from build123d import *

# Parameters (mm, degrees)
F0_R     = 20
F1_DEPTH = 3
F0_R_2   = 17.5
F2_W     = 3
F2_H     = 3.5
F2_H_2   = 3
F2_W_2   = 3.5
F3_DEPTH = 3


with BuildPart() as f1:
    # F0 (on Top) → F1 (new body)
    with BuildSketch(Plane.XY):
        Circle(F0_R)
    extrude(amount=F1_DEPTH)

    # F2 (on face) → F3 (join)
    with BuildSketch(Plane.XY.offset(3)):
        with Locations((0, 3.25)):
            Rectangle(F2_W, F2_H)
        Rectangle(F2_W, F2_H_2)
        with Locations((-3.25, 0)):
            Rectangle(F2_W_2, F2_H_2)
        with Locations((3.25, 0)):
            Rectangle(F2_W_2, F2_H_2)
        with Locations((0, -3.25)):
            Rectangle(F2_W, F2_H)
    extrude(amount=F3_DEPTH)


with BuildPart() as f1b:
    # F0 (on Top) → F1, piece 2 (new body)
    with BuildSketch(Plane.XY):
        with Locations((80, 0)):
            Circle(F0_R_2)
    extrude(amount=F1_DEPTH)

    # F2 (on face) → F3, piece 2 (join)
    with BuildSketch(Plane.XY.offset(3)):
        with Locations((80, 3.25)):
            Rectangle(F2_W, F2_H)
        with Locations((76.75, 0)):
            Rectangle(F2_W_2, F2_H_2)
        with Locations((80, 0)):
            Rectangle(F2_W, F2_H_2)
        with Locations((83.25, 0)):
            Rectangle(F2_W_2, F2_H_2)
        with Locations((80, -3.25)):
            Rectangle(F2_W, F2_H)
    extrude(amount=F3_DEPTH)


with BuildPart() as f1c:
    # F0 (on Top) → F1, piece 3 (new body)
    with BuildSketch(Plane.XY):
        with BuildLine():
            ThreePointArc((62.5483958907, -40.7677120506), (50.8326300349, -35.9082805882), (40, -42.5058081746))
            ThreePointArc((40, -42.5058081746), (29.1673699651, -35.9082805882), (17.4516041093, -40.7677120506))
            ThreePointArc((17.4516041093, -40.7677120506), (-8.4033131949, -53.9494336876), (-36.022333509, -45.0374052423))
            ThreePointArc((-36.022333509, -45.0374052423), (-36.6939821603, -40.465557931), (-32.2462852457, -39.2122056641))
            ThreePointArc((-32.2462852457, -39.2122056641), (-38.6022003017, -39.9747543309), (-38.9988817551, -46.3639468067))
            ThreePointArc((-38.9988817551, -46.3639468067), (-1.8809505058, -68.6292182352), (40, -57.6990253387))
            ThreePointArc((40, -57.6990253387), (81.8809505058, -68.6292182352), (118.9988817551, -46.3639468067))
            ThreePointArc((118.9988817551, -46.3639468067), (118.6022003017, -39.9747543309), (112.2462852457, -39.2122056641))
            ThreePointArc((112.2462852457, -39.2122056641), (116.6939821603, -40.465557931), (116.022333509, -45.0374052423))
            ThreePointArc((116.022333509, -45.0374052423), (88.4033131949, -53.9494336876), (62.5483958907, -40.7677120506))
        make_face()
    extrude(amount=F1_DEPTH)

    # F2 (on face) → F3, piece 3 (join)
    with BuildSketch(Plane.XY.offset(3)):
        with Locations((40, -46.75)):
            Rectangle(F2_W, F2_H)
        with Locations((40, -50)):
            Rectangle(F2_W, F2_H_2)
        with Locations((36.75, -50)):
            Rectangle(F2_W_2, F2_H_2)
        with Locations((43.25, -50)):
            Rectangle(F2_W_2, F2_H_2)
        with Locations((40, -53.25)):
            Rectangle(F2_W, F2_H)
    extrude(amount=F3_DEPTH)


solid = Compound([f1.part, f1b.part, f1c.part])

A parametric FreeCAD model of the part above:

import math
import FreeCAD as App
import Part
import Sketcher
from FreeCAD import Vector
Q = App.Units.Quantity

doc = App.newDocument("Part")
params = doc.addObject("Spreadsheet::Sheet", "Params")
for row, (alias, value) in enumerate([
    ("sketch1_diameter", "40 mm"),
    ("pad1_length", "3 mm"),
    ("sketch2_width", "3 mm"),
    ("sketch2_width2", "3.5 mm"),
    ("pad2_length", "3 mm"),
    ("sketch3_diameter", "35 mm"),
    ("pad3_length", "3 mm"),
    ("sketch4_width", "3 mm"),
    ("sketch4_width2", "3.5 mm"),
    ("pad4_length", "3 mm"),
    ("sketch5_radius", "14 mm"),
    ("sketch5_radius2", "38 mm"),
    ("sketch5_radius3", "5 mm"),
    ("sketch5_radius4", "3.5 mm"),
    ("pad5_length", "3 mm"),
    ("sketch6_width", "3 mm"),
    ("sketch6_width2", "3.5 mm"),
    ("pad6_length", "3 mm"),
], start=1):
    params.set(f"A{row}", alias)
    params.set(f"B{row}", "=" + value)
    params.setAlias(f"B{row}", alias)

body = doc.addObject("PartDesign::Body", "Body")

sketch1 = doc.addObject("Sketcher::SketchObject", "Sketch")
body.addObject(sketch1)
sketch1.AttachmentSupport = (doc.XY_Plane, [""])
sketch1.MapMode = "FlatFace"
sketch1.addGeometry(Part.Circle(Vector(0, 0, 0), Vector(0, 0, 1), 20), False)
sketch1.addConstraint([
    Sketcher.Constraint("Coincident", 0, 3, -1, 1),
    Sketcher.Constraint("Diameter", 0, Q("40 mm")),
])
sketch1.setExpression("Constraints[1]", "Params.sketch1_diameter")
pad1 = doc.addObject("PartDesign::Pad", "Pad")
body.addObject(pad1)
pad1.Profile = sketch1
pad1.setExpression("Length", "Params.pad1_length")

sketch2 = doc.addObject("Sketcher::SketchObject", "Sketch001")
body.addObject(sketch2)
sketch2.AttachmentSupport = (doc.XY_Plane, [""])
sketch2.MapMode = "FlatFace"
sketch2.AttachmentOffset = App.Placement(Vector(0, 0, 3), App.Rotation())
sketch2.addGeometry([
    Part.LineSegment(Vector(-1.5, 5, 0), Vector(-1.5, 1.5, 0)),
    Part.LineSegment(Vector(-1.5, 1.5, 0), Vector(-5, 1.5, 0)),
    Part.LineSegment(Vector(-5, 1.5, 0), Vector(-5, -1.5, 0)),
    Part.LineSegment(Vector(-5, -1.5, 0), Vector(-1.5, -1.5, 0)),
    Part.LineSegment(Vector(-1.5, -1.5, 0), Vector(-1.5, -5, 0)),
    Part.LineSegment(Vector(-1.5, -5, 0), Vector(1.5, -5, 0)),
    Part.LineSegment(Vector(1.5, -5, 0), Vector(1.5, -1.5, 0)),
    Part.LineSegment(Vector(1.5, -1.5, 0), Vector(5, -1.5, 0)),
    Part.LineSegment(Vector(5, -1.5, 0), Vector(5, 1.5, 0)),
    Part.LineSegment(Vector(5, 1.5, 0), Vector(1.5, 1.5, 0)),
    Part.LineSegment(Vector(1.5, 1.5, 0), Vector(1.5, 5, 0)),
    Part.LineSegment(Vector(1.5, 5, 0), Vector(-1.5, 5, 0)),
], False)
sketch2.addConstraint([
    Sketcher.Constraint("Coincident", 0, 2, 1, 1),
    Sketcher.Constraint("Coincident", 1, 2, 2, 1),
    Sketcher.Constraint("Coincident", 2, 2, 3, 1),
    Sketcher.Constraint("Coincident", 3, 2, 4, 1),
    Sketcher.Constraint("Coincident", 4, 2, 5, 1),
    Sketcher.Constraint("Coincident", 5, 2, 6, 1),
    Sketcher.Constraint("Coincident", 6, 2, 7, 1),
    Sketcher.Constraint("Coincident", 7, 2, 8, 1),
    Sketcher.Constraint("Coincident", 8, 2, 9, 1),
    Sketcher.Constraint("Coincident", 9, 2, 10, 1),
    Sketcher.Constraint("Coincident", 10, 2, 11, 1),
    Sketcher.Constraint("Coincident", 11, 2, 0, 1),
    Sketcher.Constraint("Vertical", 0),
    Sketcher.Constraint("Horizontal", 1),
    Sketcher.Constraint("Vertical", 2),
    Sketcher.Constraint("Horizontal", 3),
    Sketcher.Constraint("Vertical", 4),
    Sketcher.Constraint("Horizontal", 5),
    Sketcher.Constraint("Vertical", 6),
    Sketcher.Constraint("Horizontal", 7),
    Sketcher.Constraint("Vertical", 8),
    Sketcher.Constraint("Horizontal", 9),
    Sketcher.Constraint("Vertical", 10),
    Sketcher.Constraint("Horizontal", 11),
    Sketcher.Constraint("Symmetric", 0, 2, 6, 2, -1, 1),
    Sketcher.Constraint("Symmetric", 2, 2, 8, 2, -1, 1),
    Sketcher.Constraint("Symmetric", 4, 2, 10, 2, -1, 1),
    Sketcher.Constraint("Symmetric", 3, 2, 6, 2, -2),
    Sketcher.Constraint("Equal", 9, 0),
    Sketcher.Constraint("Equal", 11, 2),
    Sketcher.Constraint("DistanceX", 5, 1, 5, 2, Q("3 mm")),
    Sketcher.Constraint("DistanceX", 1, 2, 1, 1, Q("3.5 mm")),
])
sketch2.setExpression("Constraints[30]", "Params.sketch2_width")
sketch2.setExpression("Constraints[31]", "Params.sketch2_width2")
pad2 = doc.addObject("PartDesign::Pad", "Pad001")
body.addObject(pad2)
pad2.Profile = sketch2
pad2.setExpression("Length", "Params.pad2_length")
body2 = doc.addObject("PartDesign::Body", "Body001")

sketch3 = doc.addObject("Sketcher::SketchObject", "Sketch002")
body2.addObject(sketch3)
sketch3.AttachmentSupport = (doc.getObject("XY_Plane001"), [""])
sketch3.MapMode = "FlatFace"
sketch3.addGeometry(Part.Circle(Vector(80, 0, 0), Vector(0, 0, 1), 18), False)
sketch3.addConstraint([
    Sketcher.Constraint("PointOnObject", 0, 3, -1),
    Sketcher.Constraint("Diameter", 0, Q("35 mm")),
    Sketcher.Constraint("DistanceX", -1, 1, 0, 3, Q("80 mm")),
])
sketch3.setExpression("Constraints[1]", "Params.sketch3_diameter")
pad3 = doc.addObject("PartDesign::Pad", "Pad002")
body2.addObject(pad3)
pad3.Profile = sketch3
pad3.setExpression("Length", "Params.pad3_length")

sketch4 = doc.addObject("Sketcher::SketchObject", "Sketch003")
body2.addObject(sketch4)
sketch4.AttachmentSupport = (doc.getObject("XY_Plane001"), [""])
sketch4.MapMode = "FlatFace"
sketch4.AttachmentOffset = App.Placement(Vector(0, 0, 3), App.Rotation())
sketch4.addGeometry([
    Part.LineSegment(Vector(78.5, 5, 0), Vector(78.5, 1.5, 0)),
    Part.LineSegment(Vector(78.5, 1.5, 0), Vector(75, 1.5, 0)),
    Part.LineSegment(Vector(75, 1.5, 0), Vector(75, -1.5, 0)),
    Part.LineSegment(Vector(75, -1.5, 0), Vector(78.5, -1.5, 0)),
    Part.LineSegment(Vector(78.5, -1.5, 0), Vector(78.5, -5, 0)),
    Part.LineSegment(Vector(78.5, -5, 0), Vector(81.5, -5, 0)),
    Part.LineSegment(Vector(81.5, -5, 0), Vector(81.5, -1.5, 0)),
    Part.LineSegment(Vector(81.5, -1.5, 0), Vector(85, -1.5, 0)),
    Part.LineSegment(Vector(85, -1.5, 0), Vector(85, 1.5, 0)),
    Part.LineSegment(Vector(85, 1.5, 0), Vector(81.5, 1.5, 0)),
    Part.LineSegment(Vector(81.5, 1.5, 0), Vector(81.5, 5, 0)),
    Part.LineSegment(Vector(81.5, 5, 0), Vector(78.5, 5, 0)),
], False)
sketch4.addConstraint([
    Sketcher.Constraint("Coincident", 0, 2, 1, 1),
    Sketcher.Constraint("Coincident", 1, 2, 2, 1),
    Sketcher.Constraint("Coincident", 2, 2, 3, 1),
    Sketcher.Constraint("Coincident", 3, 2, 4, 1),
    Sketcher.Constraint("Coincident", 4, 2, 5, 1),
    Sketcher.Constraint("Coincident", 5, 2, 6, 1),
    Sketcher.Constraint("Coincident", 6, 2, 7, 1),
    Sketcher.Constraint("Coincident", 7, 2, 8, 1),
    Sketcher.Constraint("Coincident", 8, 2, 9, 1),
    Sketcher.Constraint("Coincident", 9, 2, 10, 1),
    Sketcher.Constraint("Coincident", 10, 2, 11, 1),
    Sketcher.Constraint("Coincident", 11, 2, 0, 1),
    Sketcher.Constraint("Vertical", 0),
    Sketcher.Constraint("Horizontal", 1),
    Sketcher.Constraint("Vertical", 2),
    Sketcher.Constraint("Horizontal", 3),
    Sketcher.Constraint("Vertical", 4),
    Sketcher.Constraint("Horizontal", 5),
    Sketcher.Constraint("Vertical", 6),
    Sketcher.Constraint("Horizontal", 7),
    Sketcher.Constraint("Vertical", 8),
    Sketcher.Constraint("Horizontal", 9),
    Sketcher.Constraint("Vertical", 10),
    Sketcher.Constraint("Horizontal", 11),
    Sketcher.Constraint("Symmetric", 0, 2, 3, 2, -1),
    Sketcher.Constraint("Symmetric", 6, 2, 9, 2, -1),
    Sketcher.Constraint("Horizontal", 3, 2, 6, 2),
    Sketcher.Constraint("Equal", 3, 7),
    Sketcher.Constraint("Equal", 9, 0),
    Sketcher.Constraint("Equal", 11, 2),
    Sketcher.Constraint("Equal", 0, 4),
    Sketcher.Constraint("DistanceX", 5, 1, 5, 2, Q("3 mm")),
    Sketcher.Constraint("DistanceX", 1, 2, 1, 1, Q("3.5 mm")),
    Sketcher.Constraint("DistanceX", -1, 1, 1, 2, Q("75 mm")),
])
sketch4.setExpression("Constraints[31]", "Params.sketch4_width")
sketch4.setExpression("Constraints[32]", "Params.sketch4_width2")
pad4 = doc.addObject("PartDesign::Pad", "Pad003")
body2.addObject(pad4)
pad4.Profile = sketch4
pad4.setExpression("Length", "Params.pad4_length")
body3 = doc.addObject("PartDesign::Body", "Body002")

sketch5 = doc.addObject("Sketcher::SketchObject", "Sketch004")
body3.addObject(sketch5)
sketch5.AttachmentSupport = (doc.getObject("XY_Plane002"), [""])
sketch5.MapMode = "FlatFace"
sketch5.addGeometry([
    Part.ArcOfCircle(Part.Circle(Vector(51.9, -49.9, 0), Vector(0, 0, 1), 14), math.radians(41), math.radians(148)),
    Part.ArcOfCircle(Part.Circle(Vector(28.1, -49.9, 0), Vector(0, 0, 1), 14), math.radians(32), math.radians(139)),
    Part.ArcOfCircle(Part.Circle(Vector(-11.4, -16.1, 0), Vector(0, 0, 1), 38), math.radians(-130), math.radians(-41)),
    Part.ArcOfCircle(Part.Circle(Vector(-33.8, -42.4, 0), Vector(0, 0, 1), 3.5), math.radians(64), math.radians(230)),
    Part.ArcOfCircle(Part.Circle(Vector(-35, -43.4, 0), Vector(0, 0, 1), 5), math.radians(57), math.radians(216)),
    Part.ArcOfCircle(Part.Circle(Vector(6.1, -13.3, 0), Vector(0, 0, 1), 55.9), math.radians(-144), math.radians(-53)),
    Part.ArcOfCircle(Part.Circle(Vector(73.9, -13.3, 0), Vector(0, 0, 1), 55.9), math.radians(-127), math.radians(-36)),
    Part.ArcOfCircle(Part.Circle(Vector(115, -43.4, 0), Vector(0, 0, 1), 5), math.radians(-36), math.radians(123)),
    Part.ArcOfCircle(Part.Circle(Vector(113.8, -42.4, 0), Vector(0, 0, 1), 3.5), math.radians(-50), math.radians(116)),
    Part.ArcOfCircle(Part.Circle(Vector(91.4, -16.1, 0), Vector(0, 0, 1), 38), math.radians(-139), math.radians(-50)),
], False)
sketch5.addConstraint([
    Sketcher.Constraint("Coincident", 0, 2, 1, 1),
    Sketcher.Constraint("Tangent", 1, 2, 2, 2),
    Sketcher.Constraint("Tangent", 2, 1, 3, 2),
    Sketcher.Constraint("Coincident", 3, 1, 4, 1),
    Sketcher.Constraint("Tangent", 4, 2, 5, 1),
    Sketcher.Constraint("Coincident", 5, 2, 6, 1),
    Sketcher.Constraint("Tangent", 6, 2, 7, 1),
    Sketcher.Constraint("Coincident", 7, 2, 8, 2),
    Sketcher.Constraint("Tangent", 8, 1, 9, 2),
    Sketcher.Constraint("Tangent", 9, 1, 0, 1),
    Sketcher.Constraint("Equal", 0, 1),
    Sketcher.Constraint("Equal", 5, 6),
    Sketcher.Constraint("Equal", 4, 7),
    Sketcher.Constraint("Equal", 3, 8),
    Sketcher.Constraint("Equal", 2, 9),
    Sketcher.Constraint("Horizontal", 0, 3, 1, 3),
    Sketcher.Constraint("Horizontal", 5, 3, 6, 3),
    Sketcher.Constraint("Horizontal", 4, 3, 7, 3),
    Sketcher.Constraint("Horizontal", 3, 3, 8, 3),
    Sketcher.Constraint("Horizontal", 2, 3, 9, 3),
    Sketcher.Constraint("Horizontal", 3, 1, 7, 2),
    Sketcher.Constraint("Radius", 0, Q("14 mm")),
    Sketcher.Constraint("Radius", 2, Q("38 mm")),
    Sketcher.Constraint("Radius", 4, Q("5 mm")),
    Sketcher.Constraint("Radius", 3, Q("3.5 mm")),
    Sketcher.Constraint("DistanceX", -1, 1, 0, 2, Q("40 mm")),
    Sketcher.Constraint("Radius", 5, Q("55.865782 mm")),
    Sketcher.Constraint("DistanceX", -1, 1, 0, 3, Q("51.908599 mm")),
    Sketcher.Constraint("DistanceY", 4, 3, 5, 3, Q("30.077602 mm")),
    Sketcher.Constraint("DistanceY", 2, 1, 3, 1, Q("5.8252 mm")),
    Sketcher.Constraint("DistanceY", 2, 3, -1, 1, Q("16.069991 mm")),
    Sketcher.Constraint("DistanceX", 3, 3, -1, 1, Q("33.757052 mm")),
    Sketcher.Constraint("DistanceX", 4, 3, -1, 1, Q("34.966671 mm")),
    Sketcher.Constraint("DistanceY", 4, 3, -1, 1, Q("43.407381 mm")),
])
sketch5.setExpression("Constraints[21]", "Params.sketch5_radius")
sketch5.setExpression("Constraints[22]", "Params.sketch5_radius2")
sketch5.setExpression("Constraints[23]", "Params.sketch5_radius3")
sketch5.setExpression("Constraints[24]", "Params.sketch5_radius4")
pad5 = doc.addObject("PartDesign::Pad", "Pad004")
body3.addObject(pad5)
pad5.Profile = sketch5
pad5.setExpression("Length", "Params.pad5_length")

sketch6 = doc.addObject("Sketcher::SketchObject", "Sketch005")
body3.addObject(sketch6)
sketch6.AttachmentSupport = (doc.getObject("XY_Plane002"), [""])
sketch6.MapMode = "FlatFace"
sketch6.AttachmentOffset = App.Placement(Vector(0, 0, 3), App.Rotation())
sketch6.addGeometry([
    Part.LineSegment(Vector(38.5, -45, 0), Vector(38.5, -48.5, 0)),
    Part.LineSegment(Vector(38.5, -48.5, 0), Vector(35, -48.5, 0)),
    Part.LineSegment(Vector(35, -48.5, 0), Vector(35, -51.5, 0)),
    Part.LineSegment(Vector(35, -51.5, 0), Vector(38.5, -51.5, 0)),
    Part.LineSegment(Vector(38.5, -51.5, 0), Vector(38.5, -55, 0)),
    Part.LineSegment(Vector(38.5, -55, 0), Vector(41.5, -55, 0)),
    Part.LineSegment(Vector(41.5, -55, 0), Vector(41.5, -51.5, 0)),
    Part.LineSegment(Vector(41.5, -51.5, 0), Vector(45, -51.5, 0)),
    Part.LineSegment(Vector(45, -51.5, 0), Vector(45, -48.5, 0)),
    Part.LineSegment(Vector(45, -48.5, 0), Vector(41.5, -48.5, 0)),
    Part.LineSegment(Vector(41.5, -48.5, 0), Vector(41.5, -45, 0)),
    Part.LineSegment(Vector(41.5, -45, 0), Vector(38.5, -45, 0)),
], False)
sketch6.addConstraint([
    Sketcher.Constraint("Coincident", 0, 2, 1, 1),
    Sketcher.Constraint("Coincident", 1, 2, 2, 1),
    Sketcher.Constraint("Coincident", 2, 2, 3, 1),
    Sketcher.Constraint("Coincident", 3, 2, 4, 1),
    Sketcher.Constraint("Coincident", 4, 2, 5, 1),
    Sketcher.Constraint("Coincident", 5, 2, 6, 1),
    Sketcher.Constraint("Coincident", 6, 2, 7, 1),
    Sketcher.Constraint("Coincident", 7, 2, 8, 1),
    Sketcher.Constraint("Coincident", 8, 2, 9, 1),
    Sketcher.Constraint("Coincident", 9, 2, 10, 1),
    Sketcher.Constraint("Coincident", 10, 2, 11, 1),
    Sketcher.Constraint("Coincident", 11, 2, 0, 1),
    Sketcher.Constraint("Vertical", 0),
    Sketcher.Constraint("Horizontal", 1),
    Sketcher.Constraint("Vertical", 2),
    Sketcher.Constraint("Horizontal", 3),
    Sketcher.Constraint("Vertical", 4),
    Sketcher.Constraint("Horizontal", 5),
    Sketcher.Constraint("Vertical", 6),
    Sketcher.Constraint("Horizontal", 7),
    Sketcher.Constraint("Vertical", 8),
    Sketcher.Constraint("Horizontal", 9),
    Sketcher.Constraint("Vertical", 10),
    Sketcher.Constraint("Horizontal", 11),
    Sketcher.Constraint("Horizontal", 3, 2, 6, 2),
    Sketcher.Constraint("Horizontal", 1, 2, 8, 2),
    Sketcher.Constraint("Vertical", 0, 2, 3, 2),
    Sketcher.Constraint("Vertical", 6, 2, 9, 2),
    Sketcher.Constraint("Equal", 3, 7),
    Sketcher.Constraint("Equal", 9, 0),
    Sketcher.Constraint("Equal", 11, 2),
    Sketcher.Constraint("Equal", 0, 4),
    Sketcher.Constraint("DistanceX", 5, 1, 5, 2, Q("3 mm")),
    Sketcher.Constraint("DistanceX", 1, 2, 1, 1, Q("3.5 mm")),
    Sketcher.Constraint("DistanceX", -1, 1, 1, 2, Q("35 mm")),
    Sketcher.Constraint("DistanceY", 4, 2, -1, 1, Q("55 mm")),
])
sketch6.setExpression("Constraints[32]", "Params.sketch6_width")
sketch6.setExpression("Constraints[33]", "Params.sketch6_width2")
pad6 = doc.addObject("PartDesign::Pad", "Pad005")
body3.addObject(pad6)
pad6.Profile = sketch6
pad6.setExpression("Length", "Params.pad6_length")

doc.recompute()
